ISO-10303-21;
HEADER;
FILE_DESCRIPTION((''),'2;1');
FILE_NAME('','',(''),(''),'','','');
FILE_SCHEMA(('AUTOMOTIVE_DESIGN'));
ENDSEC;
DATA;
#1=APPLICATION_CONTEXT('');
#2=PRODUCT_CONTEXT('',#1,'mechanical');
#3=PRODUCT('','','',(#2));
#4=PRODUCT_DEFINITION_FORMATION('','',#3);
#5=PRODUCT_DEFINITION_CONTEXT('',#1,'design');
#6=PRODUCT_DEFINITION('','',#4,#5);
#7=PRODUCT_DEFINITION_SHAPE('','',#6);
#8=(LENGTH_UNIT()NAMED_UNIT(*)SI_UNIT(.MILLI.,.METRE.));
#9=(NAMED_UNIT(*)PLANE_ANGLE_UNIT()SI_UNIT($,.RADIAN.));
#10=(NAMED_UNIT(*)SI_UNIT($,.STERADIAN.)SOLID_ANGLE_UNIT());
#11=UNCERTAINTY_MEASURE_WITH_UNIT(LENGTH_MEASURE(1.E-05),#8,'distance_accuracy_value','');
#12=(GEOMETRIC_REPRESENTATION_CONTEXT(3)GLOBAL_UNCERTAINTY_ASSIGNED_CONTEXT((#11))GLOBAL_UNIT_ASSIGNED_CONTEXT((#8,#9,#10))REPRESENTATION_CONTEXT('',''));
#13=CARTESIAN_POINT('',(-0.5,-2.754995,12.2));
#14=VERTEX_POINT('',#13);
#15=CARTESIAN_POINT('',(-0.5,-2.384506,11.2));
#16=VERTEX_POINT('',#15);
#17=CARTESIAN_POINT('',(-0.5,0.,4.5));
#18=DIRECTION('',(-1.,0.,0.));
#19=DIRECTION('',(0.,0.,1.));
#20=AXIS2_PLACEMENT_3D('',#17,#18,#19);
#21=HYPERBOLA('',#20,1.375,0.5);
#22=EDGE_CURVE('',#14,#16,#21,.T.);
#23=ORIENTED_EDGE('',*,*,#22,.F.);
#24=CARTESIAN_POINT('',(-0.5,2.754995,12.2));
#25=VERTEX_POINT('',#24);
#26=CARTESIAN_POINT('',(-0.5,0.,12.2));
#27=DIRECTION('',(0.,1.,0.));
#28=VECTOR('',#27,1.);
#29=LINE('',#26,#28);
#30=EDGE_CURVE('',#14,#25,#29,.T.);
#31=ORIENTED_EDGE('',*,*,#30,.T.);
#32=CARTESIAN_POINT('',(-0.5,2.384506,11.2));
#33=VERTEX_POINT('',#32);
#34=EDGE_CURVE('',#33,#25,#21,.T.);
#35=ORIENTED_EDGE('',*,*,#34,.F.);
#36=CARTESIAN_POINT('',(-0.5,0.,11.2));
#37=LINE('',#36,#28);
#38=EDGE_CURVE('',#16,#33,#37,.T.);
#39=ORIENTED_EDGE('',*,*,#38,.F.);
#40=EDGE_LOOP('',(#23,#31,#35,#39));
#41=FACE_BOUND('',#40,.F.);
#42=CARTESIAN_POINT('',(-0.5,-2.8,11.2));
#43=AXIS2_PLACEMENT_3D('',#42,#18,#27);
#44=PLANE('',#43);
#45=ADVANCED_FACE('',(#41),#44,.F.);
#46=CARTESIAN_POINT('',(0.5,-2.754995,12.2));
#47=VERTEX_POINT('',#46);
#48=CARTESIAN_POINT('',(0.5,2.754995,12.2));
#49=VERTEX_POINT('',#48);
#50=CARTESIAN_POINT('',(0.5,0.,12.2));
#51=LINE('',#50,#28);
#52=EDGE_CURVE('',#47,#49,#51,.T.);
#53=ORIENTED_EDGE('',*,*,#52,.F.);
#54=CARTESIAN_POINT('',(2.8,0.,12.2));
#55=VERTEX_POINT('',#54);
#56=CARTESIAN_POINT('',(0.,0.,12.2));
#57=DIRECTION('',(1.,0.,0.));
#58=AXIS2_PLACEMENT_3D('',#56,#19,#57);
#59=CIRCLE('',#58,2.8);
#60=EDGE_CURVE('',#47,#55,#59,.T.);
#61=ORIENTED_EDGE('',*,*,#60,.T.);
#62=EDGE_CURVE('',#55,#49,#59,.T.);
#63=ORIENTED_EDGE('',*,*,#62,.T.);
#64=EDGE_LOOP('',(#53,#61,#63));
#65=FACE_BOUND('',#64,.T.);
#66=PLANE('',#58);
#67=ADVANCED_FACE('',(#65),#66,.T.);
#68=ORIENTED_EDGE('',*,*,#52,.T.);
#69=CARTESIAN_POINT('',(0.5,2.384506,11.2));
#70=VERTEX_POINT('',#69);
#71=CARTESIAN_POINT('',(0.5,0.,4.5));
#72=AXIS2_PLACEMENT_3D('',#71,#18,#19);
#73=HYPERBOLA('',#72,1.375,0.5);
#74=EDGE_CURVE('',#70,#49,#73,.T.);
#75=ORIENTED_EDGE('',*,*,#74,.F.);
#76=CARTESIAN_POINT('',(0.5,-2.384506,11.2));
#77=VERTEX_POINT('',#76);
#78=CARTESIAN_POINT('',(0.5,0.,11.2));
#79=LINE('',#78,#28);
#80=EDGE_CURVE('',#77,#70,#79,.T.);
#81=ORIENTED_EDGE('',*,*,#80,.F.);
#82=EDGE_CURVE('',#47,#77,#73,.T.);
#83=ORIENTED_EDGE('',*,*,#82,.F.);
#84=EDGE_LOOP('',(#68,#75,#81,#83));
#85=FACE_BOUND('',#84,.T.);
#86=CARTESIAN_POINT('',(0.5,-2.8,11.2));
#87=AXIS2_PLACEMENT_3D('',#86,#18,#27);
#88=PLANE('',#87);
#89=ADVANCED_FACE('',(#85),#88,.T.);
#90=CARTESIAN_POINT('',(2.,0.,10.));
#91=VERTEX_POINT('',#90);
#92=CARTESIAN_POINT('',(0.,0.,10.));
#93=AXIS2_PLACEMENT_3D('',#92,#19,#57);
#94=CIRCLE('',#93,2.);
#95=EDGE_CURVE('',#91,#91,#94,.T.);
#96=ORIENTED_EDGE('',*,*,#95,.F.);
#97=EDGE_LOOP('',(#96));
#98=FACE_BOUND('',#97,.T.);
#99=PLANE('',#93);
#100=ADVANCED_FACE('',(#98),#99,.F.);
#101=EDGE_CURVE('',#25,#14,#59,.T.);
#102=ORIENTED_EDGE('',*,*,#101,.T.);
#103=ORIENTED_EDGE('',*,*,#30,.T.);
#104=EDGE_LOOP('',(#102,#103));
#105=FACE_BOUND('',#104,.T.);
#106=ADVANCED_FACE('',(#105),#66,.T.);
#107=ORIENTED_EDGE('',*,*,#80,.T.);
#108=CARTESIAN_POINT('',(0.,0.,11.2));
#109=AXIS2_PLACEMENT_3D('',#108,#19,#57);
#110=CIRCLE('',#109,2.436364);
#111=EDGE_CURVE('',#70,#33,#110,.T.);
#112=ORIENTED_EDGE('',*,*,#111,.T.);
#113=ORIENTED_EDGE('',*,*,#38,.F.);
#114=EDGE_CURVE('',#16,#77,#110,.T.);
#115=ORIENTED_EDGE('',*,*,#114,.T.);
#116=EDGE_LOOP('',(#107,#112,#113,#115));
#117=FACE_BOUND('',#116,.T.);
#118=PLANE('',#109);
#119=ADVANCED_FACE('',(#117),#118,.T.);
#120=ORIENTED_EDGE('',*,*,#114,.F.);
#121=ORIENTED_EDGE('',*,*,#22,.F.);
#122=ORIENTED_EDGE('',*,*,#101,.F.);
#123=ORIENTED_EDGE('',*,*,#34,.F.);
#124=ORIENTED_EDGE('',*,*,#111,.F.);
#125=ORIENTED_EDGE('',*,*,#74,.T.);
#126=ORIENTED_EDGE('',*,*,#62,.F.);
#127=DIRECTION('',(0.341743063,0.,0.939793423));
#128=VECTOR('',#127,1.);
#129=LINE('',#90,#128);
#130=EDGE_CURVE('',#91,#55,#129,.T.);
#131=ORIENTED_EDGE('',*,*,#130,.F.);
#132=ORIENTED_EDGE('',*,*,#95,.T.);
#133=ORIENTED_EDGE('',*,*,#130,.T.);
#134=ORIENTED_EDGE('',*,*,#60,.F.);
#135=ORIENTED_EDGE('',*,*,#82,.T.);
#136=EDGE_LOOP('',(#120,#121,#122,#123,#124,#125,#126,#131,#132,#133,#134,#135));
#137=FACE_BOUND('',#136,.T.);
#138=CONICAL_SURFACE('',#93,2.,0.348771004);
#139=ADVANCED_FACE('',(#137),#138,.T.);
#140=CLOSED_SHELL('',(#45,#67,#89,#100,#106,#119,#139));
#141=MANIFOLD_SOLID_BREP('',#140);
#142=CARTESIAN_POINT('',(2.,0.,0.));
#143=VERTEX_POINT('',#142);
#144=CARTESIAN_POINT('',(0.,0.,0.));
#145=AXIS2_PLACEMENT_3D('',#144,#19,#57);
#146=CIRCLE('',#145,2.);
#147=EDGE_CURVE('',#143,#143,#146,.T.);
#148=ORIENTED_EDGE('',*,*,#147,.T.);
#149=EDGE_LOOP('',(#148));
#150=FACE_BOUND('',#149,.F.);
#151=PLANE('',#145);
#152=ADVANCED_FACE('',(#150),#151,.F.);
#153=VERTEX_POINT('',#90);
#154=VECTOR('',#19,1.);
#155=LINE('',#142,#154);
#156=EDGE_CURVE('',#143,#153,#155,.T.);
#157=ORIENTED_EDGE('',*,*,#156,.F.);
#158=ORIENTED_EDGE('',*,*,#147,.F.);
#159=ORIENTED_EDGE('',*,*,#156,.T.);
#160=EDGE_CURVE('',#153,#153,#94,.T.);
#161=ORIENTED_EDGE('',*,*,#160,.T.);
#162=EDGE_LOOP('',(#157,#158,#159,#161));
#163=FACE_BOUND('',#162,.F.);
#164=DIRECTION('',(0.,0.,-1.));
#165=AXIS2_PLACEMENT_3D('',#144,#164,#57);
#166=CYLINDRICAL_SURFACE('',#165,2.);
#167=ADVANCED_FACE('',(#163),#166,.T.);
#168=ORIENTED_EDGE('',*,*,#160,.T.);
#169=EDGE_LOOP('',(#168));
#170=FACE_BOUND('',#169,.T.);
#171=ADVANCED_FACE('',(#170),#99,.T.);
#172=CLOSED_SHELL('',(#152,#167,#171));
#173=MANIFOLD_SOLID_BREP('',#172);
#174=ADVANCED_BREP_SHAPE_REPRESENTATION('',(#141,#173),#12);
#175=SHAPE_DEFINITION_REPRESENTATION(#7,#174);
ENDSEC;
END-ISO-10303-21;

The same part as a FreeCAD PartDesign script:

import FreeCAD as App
import Part
import Sketcher

V = App.Vector
Q = App.Units.Quantity

doc = App.newDocument("Part")
body = doc.addObject("PartDesign::Body", "Body")

# Sketch on XY plane
sketch1 = doc.addObject("Sketcher::SketchObject", "Sketch")
body.addObject(sketch1)
sketch1.AttachmentSupport = (doc.XY_Plane, [""])
sketch1.MapMode = "FlatFace"
sketch1.addGeometry(Part.Circle(V(0, 0, 0), V(0, 0, 1), 2), False)
sketch1.addConstraint([
    Sketcher.Constraint("Coincident", 0, 3, -1, 1),
    Sketcher.Constraint("Diameter", 0, Q("4 mm")),
])
pad1 = doc.addObject("PartDesign::Pad", "Pad")
body.addObject(pad1)
pad1.Profile = sketch1
pad1.Length = 10
body2 = doc.addObject("PartDesign::Body", "Body001")

# Sketch on XY plane
sketch2 = doc.addObject("Sketcher::SketchObject", "Sketch001")
body2.addObject(sketch2)
sketch2.AttachmentSupport = (doc.getObject("XY_Plane001"), [""])
sketch2.MapMode = "FlatFace"
sketch2.AttachmentOffset = App.Placement(V(0, 0, 11.2), App.Rotation())
sketch2.addGeometry([
    Part.LineSegment(V(-0.5, 2.8, 0), V(-0.5, -2.8, 0)),
    Part.LineSegment(V(-0.5, -2.8, 0), V(0.5, -2.8, 0)),
    Part.LineSegment(V(0.5, -2.8, 0), V(0.5, 2.8, 0)),
    Part.LineSegment(V(0.5, 2.8, 0), V(-0.5, 2.8, 0)),
], False)
sketch2.addConstraint([
    Sketcher.Constraint("Coincident", 0, 2, 1, 1),
    Sketcher.Constraint("Coincident", 1, 2, 2, 1),
    Sketcher.Constraint("Coincident", 2, 2, 3, 1),
    Sketcher.Constraint("Coincident", 3, 2, 0, 1),
    Sketcher.Constraint("Vertical", 0),
    Sketcher.Constraint("Horizontal", 1),
    Sketcher.Constraint("Vertical", 2),
    Sketcher.Constraint("Horizontal", 3),
    Sketcher.Constraint("Symmetric", 0, 2, 2, 2, -1, 1),
    Sketcher.Constraint("DistanceX", 1, 1, 1, 2, Q("1 mm")),
    Sketcher.Constraint("DistanceY", 0, 2, 0, 1, Q("5.6 mm")),
])
pad2 = doc.addObject("PartDesign::Pad", "Pad001")
body2.addObject(pad2)
pad2.Profile = sketch2
pad2.Length = 1
body3 = doc.addObject("PartDesign::Body", "Body002")

# Sketch on XZ plane
sketch3 = doc.addObject("Sketcher::SketchObject", "Sketch002")
body3.addObject(sketch3)
sketch3.AttachmentSupport = (doc.getObject("XZ_Plane002"), [""])
sketch3.MapMode = "FlatFace"
sketch3.addGeometry([
    Part.LineSegment(V(0, 10, 0), V(2, 10, 0)),
    Part.LineSegment(V(2, 10, 0), V(2.8, 12.2, 0)),
    Part.LineSegment(V(2.8, 12.2, 0), V(0, 12.2, 0)),
    Part.LineSegment(V(0, 12.2, 0), V(0, 10, 0)),
], False)
sketch3.addConstraint([
    Sketcher.Constraint("Coincident", 0, 2, 1, 1),
    Sketcher.Constraint("Coincident", 1, 2, 2, 1),
    Sketcher.Constraint("Coincident", 2, 2, 3, 1),
    Sketcher.Constraint("Coincident", 3, 2, 0, 1),
    Sketcher.Constraint("Horizontal", 0),
    Sketcher.Constraint("Horizontal", 2),
    Sketcher.Constraint("Vertical", 3),
    Sketcher.Constraint("PointOnObject", 2, 2, -2),
    Sketcher.Constraint("DistanceX", 0, 1, 0, 2, Q("2 mm")),
    Sketcher.Constraint("DistanceX", 2, 2, 2, 1, Q("2.8 mm")),
    Sketcher.Constraint("DistanceY", 3, 2, 3, 1, Q("2.2 mm")),
    Sketcher.Constraint("DistanceY", -1, 1, 0, 2, Q("10 mm")),
])
revolution = doc.addObject("PartDesign::Revolution", "Revolution")
body3.addObject(revolution)
revolution.Profile = sketch3
revolution.ReferenceAxis = (sketch3, ["V_Axis"])
revolution.Angle = 360
doc.recompute()

boolean = doc.addObject("PartDesign::Boolean", "Boolean")
body3.addObject(boolean)
boolean.Type = "Cut"
boolean.addObjects([body2])

doc.recompute()
